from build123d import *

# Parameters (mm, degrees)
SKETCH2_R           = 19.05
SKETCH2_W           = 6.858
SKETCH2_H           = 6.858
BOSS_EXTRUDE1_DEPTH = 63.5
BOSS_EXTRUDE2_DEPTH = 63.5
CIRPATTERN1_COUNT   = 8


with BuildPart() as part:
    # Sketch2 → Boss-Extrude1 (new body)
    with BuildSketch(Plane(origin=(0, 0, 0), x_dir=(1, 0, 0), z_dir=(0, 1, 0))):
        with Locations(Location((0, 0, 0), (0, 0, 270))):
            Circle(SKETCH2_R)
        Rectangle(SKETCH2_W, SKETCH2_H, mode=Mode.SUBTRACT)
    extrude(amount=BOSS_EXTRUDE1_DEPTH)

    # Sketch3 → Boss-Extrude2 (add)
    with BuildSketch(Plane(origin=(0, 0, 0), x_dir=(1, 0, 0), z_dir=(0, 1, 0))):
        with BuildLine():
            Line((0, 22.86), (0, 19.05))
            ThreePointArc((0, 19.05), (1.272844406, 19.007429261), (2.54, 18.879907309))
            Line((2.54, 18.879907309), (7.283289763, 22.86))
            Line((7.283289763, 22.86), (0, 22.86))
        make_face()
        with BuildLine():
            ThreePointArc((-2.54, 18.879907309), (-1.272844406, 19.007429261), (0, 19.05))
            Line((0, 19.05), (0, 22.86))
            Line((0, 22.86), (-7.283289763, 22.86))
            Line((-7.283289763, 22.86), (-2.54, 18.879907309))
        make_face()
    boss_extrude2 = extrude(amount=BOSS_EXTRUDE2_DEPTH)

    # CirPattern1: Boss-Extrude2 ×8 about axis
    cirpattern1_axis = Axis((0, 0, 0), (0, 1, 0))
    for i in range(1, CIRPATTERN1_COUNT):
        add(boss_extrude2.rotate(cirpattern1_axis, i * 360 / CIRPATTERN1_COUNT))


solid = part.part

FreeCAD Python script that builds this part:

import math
import FreeCAD as App
import Part
import Sketcher
from FreeCAD import Vector
Q = App.Units.Quantity

doc = App.newDocument("Part")
body = doc.addObject("PartDesign::Body", "Body")

# Sketch on XZ plane
sketch1 = body.newObject("Sketcher::SketchObject", "Sketch")
sketch1.AttachmentSupport = (doc.getObject("XZ_Plane"), [""])
sketch1.MapMode = "FlatFace"
sketch1.addGeometry(Part.Circle(Vector(0, 0, 0), Vector(0, 0, 1), 19), False)
sketch1.addGeometry(Part.LineSegment(Vector(3, 3, 0), Vector(-3, 3, 0)), False)
sketch1.addGeometry(Part.LineSegment(Vector(-3, 3, 0), Vector(-3, -3, 0)), False)
sketch1.addGeometry(Part.LineSegment(Vector(-3, -3, 0), Vector(3, -3, 0)), False)
sketch1.addGeometry(Part.LineSegment(Vector(3, -3, 0), Vector(3, 3, 0)), False)
sketch1.addConstraint(Sketcher.Constraint("Coincident", 1, 2, 2, 1))
sketch1.addConstraint(Sketcher.Constraint("Coincident", 2, 2, 3, 1))
sketch1.addConstraint(Sketcher.Constraint("Coincident", 3, 2, 4, 1))
sketch1.addConstraint(Sketcher.Constraint("Coincident", 4, 2, 1, 1))
sketch1.addConstraint(Sketcher.Constraint("Horizontal", 1))
sketch1.addConstraint(Sketcher.Constraint("Vertical", 2))
sketch1.addConstraint(Sketcher.Constraint("Horizontal", 3))
sketch1.addConstraint(Sketcher.Constraint("Vertical", 4))
sketch1.addConstraint(Sketcher.Constraint("Coincident", 0, 3, -1, 1))
sketch1.addConstraint(Sketcher.Constraint("Symmetric", 1, 2, 3, 2, -1, 1))
sketch1.addConstraint(Sketcher.Constraint("Equal", 3, 2))
sketch1.addConstraint(Sketcher.Constraint("Diameter", 0, Q("1.5 in")))
sketch1.addConstraint(Sketcher.Constraint("DistanceX", 1, 2, 1, 1, Q("0.27 in")))
pad1 = body.newObject("PartDesign::Pad", "Pad")
pad1.Profile = sketch1
pad1.Length = Q("2.5 in")
pad1.Reversed = True

# Sketch on XZ plane
sketch2 = body.newObject("Sketcher::SketchObject", "Sketch001")
sketch2.AttachmentSupport = (doc.getObject("XZ_Plane"), [""])
sketch2.MapMode = "FlatFace"
sketch2.addGeometry(Part.ArcOfCircle(Part.Circle(Vector(0, 0, 0), Vector(0, 0, 1), 19.1), math.radians(-90), math.radians(-82.34)), False)
sketch2.addGeometry(Part.LineSegment(Vector(2.5, -18.9, 0), Vector(7.3, -22.9, 0)), False)
sketch2.addGeometry(Part.LineSegment(Vector(7.3, -22.9, 0), Vector(-7.3, -22.9, 0)), False)
sketch2.addGeometry(Part.LineSegment(Vector(-7.3, -22.9, 0), Vector(-2.5, -18.9, 0)), False)
sketch2.addGeometry(Part.ArcOfCircle(Part.Circle(Vector(0, 0, 0), Vector(0, 0, 1), 19.1), math.radians(-97.66), math.radians(-90)), False)
sketch2.addConstraint(Sketcher.Constraint("Coincident", 0, 2, 1, 1))
sketch2.addConstraint(Sketcher.Constraint("Coincident", 1, 2, 2, 1))
sketch2.addConstraint(Sketcher.Constraint("Coincident", 2, 2, 3, 1))
sketch2.addConstraint(Sketcher.Constraint("Coincident", 3, 2, 4, 1))
sketch2.addConstraint(Sketcher.Constraint("Tangent", 4, 2, 0, 1))
sketch2.addConstraint(Sketcher.Constraint("Horizontal", 2))
sketch2.addConstraint(Sketcher.Constraint("Coincident", 0, 3, -1, 1))
sketch2.addConstraint(Sketcher.Constraint("Equal", 0, 4))
sketch2.addConstraint(Sketcher.Constraint("PointOnObject", 4, 2, -2))
sketch2.addConstraint(Sketcher.Constraint("Horizontal", 0, 2, 3, 2))
sketch2.addConstraint(Sketcher.Constraint("Equal", 1, 3))
sketch2.addConstraint(Sketcher.Constraint("Radius", 0, Q("0.75 in")))
sketch2.addConstraint(Sketcher.Constraint("Angle", 1, Q("-40 deg")))
sketch2.addConstraint(Sketcher.Constraint("DistanceX", -1, 1, 0, 2, Q("0.1 in")))
sketch2.addConstraint(Sketcher.Constraint("DistanceY", 1, 2, -1, 1, Q("0.9 in")))
pad2 = body.newObject("PartDesign::Pad", "Pad001")
pad2.Profile = sketch2
pad2.Length = Q("2.5 in")
pad2.Reversed = True
doc.recompute()

polarpattern = body.newObject("PartDesign::PolarPattern", "PolarPattern")
polarpattern.Originals = [pad2]
polarpattern.Axis = (doc.getObject("Y_Axis"), [""])
polarpattern.Angle = 360
polarpattern.Occurrences = 8
body.Tip = polarpattern

doc.recompute()
